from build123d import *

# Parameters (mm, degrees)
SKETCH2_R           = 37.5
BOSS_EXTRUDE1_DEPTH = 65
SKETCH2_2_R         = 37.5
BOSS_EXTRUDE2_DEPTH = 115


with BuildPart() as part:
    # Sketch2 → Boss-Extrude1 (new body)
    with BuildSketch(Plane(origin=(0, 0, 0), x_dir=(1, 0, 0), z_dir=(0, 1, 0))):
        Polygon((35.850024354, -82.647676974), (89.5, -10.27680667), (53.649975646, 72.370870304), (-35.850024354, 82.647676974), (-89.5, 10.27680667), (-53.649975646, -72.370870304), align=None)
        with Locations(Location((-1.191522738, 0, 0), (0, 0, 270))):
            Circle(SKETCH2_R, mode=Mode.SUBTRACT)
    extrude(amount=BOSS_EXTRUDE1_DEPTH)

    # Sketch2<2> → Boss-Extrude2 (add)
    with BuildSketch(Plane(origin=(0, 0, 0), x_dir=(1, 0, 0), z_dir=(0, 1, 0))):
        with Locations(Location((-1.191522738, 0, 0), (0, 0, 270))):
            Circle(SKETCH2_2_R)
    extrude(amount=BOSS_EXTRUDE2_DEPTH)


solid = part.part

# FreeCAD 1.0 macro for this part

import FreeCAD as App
import Part
import Sketcher


def add_polygon(sketch, points):
    """Adds a closed chain of lines whose ends are joined by coincident constraints."""
    first, n = sketch.GeometryCount, len(points)
    for a, b in zip(points, points[1:] + points[:1]):
        sketch.addGeometry(Part.LineSegment(App.Vector(*a, 0), App.Vector(*b, 0)), False)
    for i in range(n):
        sketch.addConstraint(Sketcher.Constraint("Coincident", first + i, 2, first + (i + 1) % n, 1))

doc = App.newDocument("Part")
body = doc.addObject("PartDesign::Body", "Body")

sketch1 = body.newObject("Sketcher::SketchObject", "Sketch")
sketch1.AttachmentSupport = (doc.getObject("XZ_Plane"), [""])
sketch1.MapMode = "FlatFace"
add_polygon(sketch1, [(36, 83), (90, 10), (54, -72), (-36, -83), (-90, -10), (-54, 72)])
sketch1.addGeometry(Part.Circle(App.Vector(-1, 0, 0), App.Vector(0, 0, 1), 38), False)
sketch1.addConstraint([
    Sketcher.Constraint("Symmetric", 0, 2, 3, 2, -1, 1),
    Sketcher.Constraint("Symmetric", 1, 2, 4, 2, -1, 1),
    Sketcher.Constraint("Symmetric", 2, 2, 5, 2, -1, 1),
    Sketcher.Constraint("PointOnObject", 6, 3, -1),
    Sketcher.Constraint("Equal", 0, 1),
    Sketcher.Constraint("Equal", 1, 2),
    Sketcher.Constraint("Diameter", 6, 75.0),
    Sketcher.Constraint("DistanceX", 3, 2, 0, 2, 179.0),
    Sketcher.Constraint("DistanceX", 2, 2, 1, 2, 89.5),
    Sketcher.Constraint("DistanceX", 6, 3, 1, 2, 54.841498),
    Sketcher.Constraint("DistanceY", 1, 2, -1, 1, 72.37087),
    Sketcher.Constraint("DistanceY", 2, 2, 3, 2, 72.37087),
])
pad1 = body.newObject("PartDesign::Pad", "Pad")
pad1.Profile = sketch1
pad1.Length = 65
pad1.Reversed = True

sketch2 = body.newObject("Sketcher::SketchObject", "Sketch001")
sketch2.AttachmentSupport = (doc.getObject("XZ_Plane"), [""])
sketch2.MapMode = "FlatFace"
sketch2.addGeometry(Part.Circle(App.Vector(-1, 0, 0), App.Vector(0, 0, 1), 38), False)
sketch2.addConstraint([
    Sketcher.Constraint("PointOnObject", 0, 3, -1),
    Sketcher.Constraint("Diameter", 0, 75.0),
    Sketcher.Constraint("DistanceX", 0, 3, -1, 1, 1.191523),
])
pad2 = body.newObject("PartDesign::Pad", "Pad001")
pad2.Profile = sketch2
pad2.Length = 115
pad2.Reversed = True

doc.recompute()
